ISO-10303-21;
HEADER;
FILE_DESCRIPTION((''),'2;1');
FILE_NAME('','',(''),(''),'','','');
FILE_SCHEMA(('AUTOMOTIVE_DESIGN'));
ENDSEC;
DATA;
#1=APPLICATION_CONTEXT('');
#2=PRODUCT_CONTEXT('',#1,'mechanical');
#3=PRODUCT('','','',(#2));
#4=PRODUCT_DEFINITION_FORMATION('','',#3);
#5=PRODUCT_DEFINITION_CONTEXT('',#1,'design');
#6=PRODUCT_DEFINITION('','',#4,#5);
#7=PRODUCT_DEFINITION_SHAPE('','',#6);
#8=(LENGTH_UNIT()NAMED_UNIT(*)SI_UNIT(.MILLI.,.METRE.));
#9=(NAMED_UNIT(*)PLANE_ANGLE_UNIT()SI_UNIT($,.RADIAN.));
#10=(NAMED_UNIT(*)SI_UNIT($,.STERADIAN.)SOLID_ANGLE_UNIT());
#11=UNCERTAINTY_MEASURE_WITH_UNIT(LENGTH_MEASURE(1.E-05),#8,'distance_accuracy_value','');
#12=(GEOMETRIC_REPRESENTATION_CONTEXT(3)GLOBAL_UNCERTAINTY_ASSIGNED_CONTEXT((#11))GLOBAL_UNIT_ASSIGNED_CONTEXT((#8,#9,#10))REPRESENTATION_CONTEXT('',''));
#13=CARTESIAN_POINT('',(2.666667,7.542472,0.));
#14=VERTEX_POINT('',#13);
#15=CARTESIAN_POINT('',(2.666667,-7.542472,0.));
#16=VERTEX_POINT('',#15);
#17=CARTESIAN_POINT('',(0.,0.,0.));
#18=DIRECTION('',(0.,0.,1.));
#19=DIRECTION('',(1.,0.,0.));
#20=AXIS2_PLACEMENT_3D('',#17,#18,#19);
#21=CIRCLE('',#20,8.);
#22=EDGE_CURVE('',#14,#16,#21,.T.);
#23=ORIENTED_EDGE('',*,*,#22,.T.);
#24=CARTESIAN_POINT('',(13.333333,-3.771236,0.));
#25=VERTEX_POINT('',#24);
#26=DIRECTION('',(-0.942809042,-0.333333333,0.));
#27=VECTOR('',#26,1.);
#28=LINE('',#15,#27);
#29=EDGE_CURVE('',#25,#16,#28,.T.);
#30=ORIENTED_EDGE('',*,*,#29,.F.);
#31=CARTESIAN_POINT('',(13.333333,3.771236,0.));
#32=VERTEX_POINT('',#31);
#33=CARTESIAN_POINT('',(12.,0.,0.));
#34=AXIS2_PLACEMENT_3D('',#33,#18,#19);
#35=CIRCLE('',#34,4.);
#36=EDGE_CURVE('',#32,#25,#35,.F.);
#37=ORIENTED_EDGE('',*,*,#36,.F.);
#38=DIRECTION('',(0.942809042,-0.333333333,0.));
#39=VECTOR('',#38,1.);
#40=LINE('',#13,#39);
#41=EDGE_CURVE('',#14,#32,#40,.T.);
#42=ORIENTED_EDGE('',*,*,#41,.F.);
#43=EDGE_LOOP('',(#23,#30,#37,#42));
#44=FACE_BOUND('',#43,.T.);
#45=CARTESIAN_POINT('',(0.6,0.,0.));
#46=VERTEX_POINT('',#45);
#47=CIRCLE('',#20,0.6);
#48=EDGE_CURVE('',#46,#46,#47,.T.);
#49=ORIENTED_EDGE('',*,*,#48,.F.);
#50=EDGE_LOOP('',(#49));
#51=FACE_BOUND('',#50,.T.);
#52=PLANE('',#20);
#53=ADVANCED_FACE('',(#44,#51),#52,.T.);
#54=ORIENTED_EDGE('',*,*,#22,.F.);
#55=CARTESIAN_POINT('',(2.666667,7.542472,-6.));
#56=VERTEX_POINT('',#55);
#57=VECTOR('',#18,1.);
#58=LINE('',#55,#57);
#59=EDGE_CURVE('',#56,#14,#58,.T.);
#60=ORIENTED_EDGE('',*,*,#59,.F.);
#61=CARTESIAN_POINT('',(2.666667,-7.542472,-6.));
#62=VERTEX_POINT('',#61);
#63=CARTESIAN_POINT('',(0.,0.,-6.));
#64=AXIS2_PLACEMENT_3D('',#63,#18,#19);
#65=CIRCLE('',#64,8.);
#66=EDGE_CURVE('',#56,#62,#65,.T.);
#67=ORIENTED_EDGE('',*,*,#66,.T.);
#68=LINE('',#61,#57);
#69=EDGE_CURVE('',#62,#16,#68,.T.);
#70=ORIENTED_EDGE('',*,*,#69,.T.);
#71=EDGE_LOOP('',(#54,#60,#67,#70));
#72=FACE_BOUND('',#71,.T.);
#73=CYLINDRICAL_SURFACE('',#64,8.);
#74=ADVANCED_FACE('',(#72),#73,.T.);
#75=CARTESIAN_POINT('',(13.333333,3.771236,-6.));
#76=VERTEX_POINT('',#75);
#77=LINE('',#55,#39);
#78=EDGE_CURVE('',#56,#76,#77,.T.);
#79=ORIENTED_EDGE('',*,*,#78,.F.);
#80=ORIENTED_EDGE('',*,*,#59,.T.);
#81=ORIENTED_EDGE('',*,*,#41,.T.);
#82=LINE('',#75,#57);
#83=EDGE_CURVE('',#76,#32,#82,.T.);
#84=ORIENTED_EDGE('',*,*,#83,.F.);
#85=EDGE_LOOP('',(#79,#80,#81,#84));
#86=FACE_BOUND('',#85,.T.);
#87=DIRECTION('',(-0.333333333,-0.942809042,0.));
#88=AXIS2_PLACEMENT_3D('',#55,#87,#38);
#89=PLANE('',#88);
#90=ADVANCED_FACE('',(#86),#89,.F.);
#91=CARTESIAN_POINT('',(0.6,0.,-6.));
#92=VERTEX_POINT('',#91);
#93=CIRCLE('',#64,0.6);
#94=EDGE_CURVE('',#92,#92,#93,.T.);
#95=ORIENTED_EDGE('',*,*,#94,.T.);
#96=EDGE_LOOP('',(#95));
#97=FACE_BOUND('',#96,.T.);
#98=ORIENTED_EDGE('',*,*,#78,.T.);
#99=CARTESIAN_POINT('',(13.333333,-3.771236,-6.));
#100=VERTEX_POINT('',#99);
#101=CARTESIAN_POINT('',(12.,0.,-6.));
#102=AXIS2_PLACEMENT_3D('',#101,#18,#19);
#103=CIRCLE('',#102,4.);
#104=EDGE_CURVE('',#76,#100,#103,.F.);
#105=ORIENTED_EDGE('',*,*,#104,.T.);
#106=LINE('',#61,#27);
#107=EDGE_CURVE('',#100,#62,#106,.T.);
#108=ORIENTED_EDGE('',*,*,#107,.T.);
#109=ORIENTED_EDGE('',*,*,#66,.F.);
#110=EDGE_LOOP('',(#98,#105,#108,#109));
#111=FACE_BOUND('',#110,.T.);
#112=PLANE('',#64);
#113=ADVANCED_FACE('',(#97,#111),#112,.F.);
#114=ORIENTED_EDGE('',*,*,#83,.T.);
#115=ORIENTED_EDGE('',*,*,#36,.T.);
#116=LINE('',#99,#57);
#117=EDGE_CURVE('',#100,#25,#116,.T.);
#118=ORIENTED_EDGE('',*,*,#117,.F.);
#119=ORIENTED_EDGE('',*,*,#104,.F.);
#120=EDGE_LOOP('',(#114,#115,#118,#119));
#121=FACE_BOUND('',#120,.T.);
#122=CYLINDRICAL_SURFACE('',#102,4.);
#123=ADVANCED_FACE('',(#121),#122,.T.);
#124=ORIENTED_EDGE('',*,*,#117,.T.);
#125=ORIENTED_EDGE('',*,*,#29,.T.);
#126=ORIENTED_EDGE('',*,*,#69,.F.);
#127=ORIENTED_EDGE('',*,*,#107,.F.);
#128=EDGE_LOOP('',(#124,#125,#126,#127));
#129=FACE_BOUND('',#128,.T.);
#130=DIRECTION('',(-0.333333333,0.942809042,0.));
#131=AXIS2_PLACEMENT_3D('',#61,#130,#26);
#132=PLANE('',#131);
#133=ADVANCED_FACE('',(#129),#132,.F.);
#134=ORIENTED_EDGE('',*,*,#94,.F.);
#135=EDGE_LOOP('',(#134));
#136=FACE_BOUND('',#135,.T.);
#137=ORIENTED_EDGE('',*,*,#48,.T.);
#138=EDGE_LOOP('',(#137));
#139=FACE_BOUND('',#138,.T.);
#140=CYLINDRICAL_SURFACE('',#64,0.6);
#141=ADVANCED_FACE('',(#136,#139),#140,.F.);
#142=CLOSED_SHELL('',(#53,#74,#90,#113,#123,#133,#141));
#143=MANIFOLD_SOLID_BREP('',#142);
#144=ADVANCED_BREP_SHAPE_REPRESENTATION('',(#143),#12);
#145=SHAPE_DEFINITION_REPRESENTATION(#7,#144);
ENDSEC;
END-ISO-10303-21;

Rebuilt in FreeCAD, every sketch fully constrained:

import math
import FreeCAD as App
import Part
import Sketcher

V = App.Vector
Q = App.Units.Quantity

doc = App.newDocument("Part")
body = doc.addObject("PartDesign::Body", "Body")

sketch1 = doc.addObject("Sketcher::SketchObject", "Sketch")
body.addObject(sketch1)
sketch1.AttachmentSupport = (doc.XY_Plane, [""])
sketch1.MapMode = "FlatFace"
sketch1.addGeometry([
    Part.LineSegment(V(13.3, 3.8, 0), V(2.7, 7.5, 0)),
    Part.ArcOfCircle(Part.Circle(V(0, 0, 0), V(0, 0, 1), 8), math.radians(71), math.radians(289)),
    Part.LineSegment(V(2.7, -7.5, 0), V(13.3, -3.8, 0)),
    Part.ArcOfCircle(Part.Circle(V(12, 0, 0), V(0, 0, 1), 4), math.radians(-71), math.radians(71)),
    Part.Circle(V(0, 0, 0), V(0, 0, 1), 0.6),
], False)
sketch1.addConstraint([
    Sketcher.Constraint("Tangent", 0, 2, 1, 1),
    Sketcher.Constraint("Tangent", 1, 2, 2, 1),
    Sketcher.Constraint("Tangent", 2, 2, 3, 1),
    Sketcher.Constraint("Tangent", 3, 2, 0, 1),
    Sketcher.Constraint("Coincident", 1, 3, -1, 1),
    Sketcher.Constraint("Coincident", 4, 3, -1, 1),
    Sketcher.Constraint("PointOnObject", 3, 3, -1),
    Sketcher.Constraint("Radius", 1, Q("8 mm")),
    Sketcher.Constraint("Radius", 3, Q("4 mm")),
    Sketcher.Constraint("Diameter", 4, Q("1.2 mm")),
    Sketcher.Constraint("DistanceX", -1, 1, 3, 3, Q("12 mm")),
])
pad1 = doc.addObject("PartDesign::Pad", "Pad")
body.addObject(pad1)
pad1.Profile = sketch1
pad1.Length = 6
pad1.Reversed = True

doc.recompute()
